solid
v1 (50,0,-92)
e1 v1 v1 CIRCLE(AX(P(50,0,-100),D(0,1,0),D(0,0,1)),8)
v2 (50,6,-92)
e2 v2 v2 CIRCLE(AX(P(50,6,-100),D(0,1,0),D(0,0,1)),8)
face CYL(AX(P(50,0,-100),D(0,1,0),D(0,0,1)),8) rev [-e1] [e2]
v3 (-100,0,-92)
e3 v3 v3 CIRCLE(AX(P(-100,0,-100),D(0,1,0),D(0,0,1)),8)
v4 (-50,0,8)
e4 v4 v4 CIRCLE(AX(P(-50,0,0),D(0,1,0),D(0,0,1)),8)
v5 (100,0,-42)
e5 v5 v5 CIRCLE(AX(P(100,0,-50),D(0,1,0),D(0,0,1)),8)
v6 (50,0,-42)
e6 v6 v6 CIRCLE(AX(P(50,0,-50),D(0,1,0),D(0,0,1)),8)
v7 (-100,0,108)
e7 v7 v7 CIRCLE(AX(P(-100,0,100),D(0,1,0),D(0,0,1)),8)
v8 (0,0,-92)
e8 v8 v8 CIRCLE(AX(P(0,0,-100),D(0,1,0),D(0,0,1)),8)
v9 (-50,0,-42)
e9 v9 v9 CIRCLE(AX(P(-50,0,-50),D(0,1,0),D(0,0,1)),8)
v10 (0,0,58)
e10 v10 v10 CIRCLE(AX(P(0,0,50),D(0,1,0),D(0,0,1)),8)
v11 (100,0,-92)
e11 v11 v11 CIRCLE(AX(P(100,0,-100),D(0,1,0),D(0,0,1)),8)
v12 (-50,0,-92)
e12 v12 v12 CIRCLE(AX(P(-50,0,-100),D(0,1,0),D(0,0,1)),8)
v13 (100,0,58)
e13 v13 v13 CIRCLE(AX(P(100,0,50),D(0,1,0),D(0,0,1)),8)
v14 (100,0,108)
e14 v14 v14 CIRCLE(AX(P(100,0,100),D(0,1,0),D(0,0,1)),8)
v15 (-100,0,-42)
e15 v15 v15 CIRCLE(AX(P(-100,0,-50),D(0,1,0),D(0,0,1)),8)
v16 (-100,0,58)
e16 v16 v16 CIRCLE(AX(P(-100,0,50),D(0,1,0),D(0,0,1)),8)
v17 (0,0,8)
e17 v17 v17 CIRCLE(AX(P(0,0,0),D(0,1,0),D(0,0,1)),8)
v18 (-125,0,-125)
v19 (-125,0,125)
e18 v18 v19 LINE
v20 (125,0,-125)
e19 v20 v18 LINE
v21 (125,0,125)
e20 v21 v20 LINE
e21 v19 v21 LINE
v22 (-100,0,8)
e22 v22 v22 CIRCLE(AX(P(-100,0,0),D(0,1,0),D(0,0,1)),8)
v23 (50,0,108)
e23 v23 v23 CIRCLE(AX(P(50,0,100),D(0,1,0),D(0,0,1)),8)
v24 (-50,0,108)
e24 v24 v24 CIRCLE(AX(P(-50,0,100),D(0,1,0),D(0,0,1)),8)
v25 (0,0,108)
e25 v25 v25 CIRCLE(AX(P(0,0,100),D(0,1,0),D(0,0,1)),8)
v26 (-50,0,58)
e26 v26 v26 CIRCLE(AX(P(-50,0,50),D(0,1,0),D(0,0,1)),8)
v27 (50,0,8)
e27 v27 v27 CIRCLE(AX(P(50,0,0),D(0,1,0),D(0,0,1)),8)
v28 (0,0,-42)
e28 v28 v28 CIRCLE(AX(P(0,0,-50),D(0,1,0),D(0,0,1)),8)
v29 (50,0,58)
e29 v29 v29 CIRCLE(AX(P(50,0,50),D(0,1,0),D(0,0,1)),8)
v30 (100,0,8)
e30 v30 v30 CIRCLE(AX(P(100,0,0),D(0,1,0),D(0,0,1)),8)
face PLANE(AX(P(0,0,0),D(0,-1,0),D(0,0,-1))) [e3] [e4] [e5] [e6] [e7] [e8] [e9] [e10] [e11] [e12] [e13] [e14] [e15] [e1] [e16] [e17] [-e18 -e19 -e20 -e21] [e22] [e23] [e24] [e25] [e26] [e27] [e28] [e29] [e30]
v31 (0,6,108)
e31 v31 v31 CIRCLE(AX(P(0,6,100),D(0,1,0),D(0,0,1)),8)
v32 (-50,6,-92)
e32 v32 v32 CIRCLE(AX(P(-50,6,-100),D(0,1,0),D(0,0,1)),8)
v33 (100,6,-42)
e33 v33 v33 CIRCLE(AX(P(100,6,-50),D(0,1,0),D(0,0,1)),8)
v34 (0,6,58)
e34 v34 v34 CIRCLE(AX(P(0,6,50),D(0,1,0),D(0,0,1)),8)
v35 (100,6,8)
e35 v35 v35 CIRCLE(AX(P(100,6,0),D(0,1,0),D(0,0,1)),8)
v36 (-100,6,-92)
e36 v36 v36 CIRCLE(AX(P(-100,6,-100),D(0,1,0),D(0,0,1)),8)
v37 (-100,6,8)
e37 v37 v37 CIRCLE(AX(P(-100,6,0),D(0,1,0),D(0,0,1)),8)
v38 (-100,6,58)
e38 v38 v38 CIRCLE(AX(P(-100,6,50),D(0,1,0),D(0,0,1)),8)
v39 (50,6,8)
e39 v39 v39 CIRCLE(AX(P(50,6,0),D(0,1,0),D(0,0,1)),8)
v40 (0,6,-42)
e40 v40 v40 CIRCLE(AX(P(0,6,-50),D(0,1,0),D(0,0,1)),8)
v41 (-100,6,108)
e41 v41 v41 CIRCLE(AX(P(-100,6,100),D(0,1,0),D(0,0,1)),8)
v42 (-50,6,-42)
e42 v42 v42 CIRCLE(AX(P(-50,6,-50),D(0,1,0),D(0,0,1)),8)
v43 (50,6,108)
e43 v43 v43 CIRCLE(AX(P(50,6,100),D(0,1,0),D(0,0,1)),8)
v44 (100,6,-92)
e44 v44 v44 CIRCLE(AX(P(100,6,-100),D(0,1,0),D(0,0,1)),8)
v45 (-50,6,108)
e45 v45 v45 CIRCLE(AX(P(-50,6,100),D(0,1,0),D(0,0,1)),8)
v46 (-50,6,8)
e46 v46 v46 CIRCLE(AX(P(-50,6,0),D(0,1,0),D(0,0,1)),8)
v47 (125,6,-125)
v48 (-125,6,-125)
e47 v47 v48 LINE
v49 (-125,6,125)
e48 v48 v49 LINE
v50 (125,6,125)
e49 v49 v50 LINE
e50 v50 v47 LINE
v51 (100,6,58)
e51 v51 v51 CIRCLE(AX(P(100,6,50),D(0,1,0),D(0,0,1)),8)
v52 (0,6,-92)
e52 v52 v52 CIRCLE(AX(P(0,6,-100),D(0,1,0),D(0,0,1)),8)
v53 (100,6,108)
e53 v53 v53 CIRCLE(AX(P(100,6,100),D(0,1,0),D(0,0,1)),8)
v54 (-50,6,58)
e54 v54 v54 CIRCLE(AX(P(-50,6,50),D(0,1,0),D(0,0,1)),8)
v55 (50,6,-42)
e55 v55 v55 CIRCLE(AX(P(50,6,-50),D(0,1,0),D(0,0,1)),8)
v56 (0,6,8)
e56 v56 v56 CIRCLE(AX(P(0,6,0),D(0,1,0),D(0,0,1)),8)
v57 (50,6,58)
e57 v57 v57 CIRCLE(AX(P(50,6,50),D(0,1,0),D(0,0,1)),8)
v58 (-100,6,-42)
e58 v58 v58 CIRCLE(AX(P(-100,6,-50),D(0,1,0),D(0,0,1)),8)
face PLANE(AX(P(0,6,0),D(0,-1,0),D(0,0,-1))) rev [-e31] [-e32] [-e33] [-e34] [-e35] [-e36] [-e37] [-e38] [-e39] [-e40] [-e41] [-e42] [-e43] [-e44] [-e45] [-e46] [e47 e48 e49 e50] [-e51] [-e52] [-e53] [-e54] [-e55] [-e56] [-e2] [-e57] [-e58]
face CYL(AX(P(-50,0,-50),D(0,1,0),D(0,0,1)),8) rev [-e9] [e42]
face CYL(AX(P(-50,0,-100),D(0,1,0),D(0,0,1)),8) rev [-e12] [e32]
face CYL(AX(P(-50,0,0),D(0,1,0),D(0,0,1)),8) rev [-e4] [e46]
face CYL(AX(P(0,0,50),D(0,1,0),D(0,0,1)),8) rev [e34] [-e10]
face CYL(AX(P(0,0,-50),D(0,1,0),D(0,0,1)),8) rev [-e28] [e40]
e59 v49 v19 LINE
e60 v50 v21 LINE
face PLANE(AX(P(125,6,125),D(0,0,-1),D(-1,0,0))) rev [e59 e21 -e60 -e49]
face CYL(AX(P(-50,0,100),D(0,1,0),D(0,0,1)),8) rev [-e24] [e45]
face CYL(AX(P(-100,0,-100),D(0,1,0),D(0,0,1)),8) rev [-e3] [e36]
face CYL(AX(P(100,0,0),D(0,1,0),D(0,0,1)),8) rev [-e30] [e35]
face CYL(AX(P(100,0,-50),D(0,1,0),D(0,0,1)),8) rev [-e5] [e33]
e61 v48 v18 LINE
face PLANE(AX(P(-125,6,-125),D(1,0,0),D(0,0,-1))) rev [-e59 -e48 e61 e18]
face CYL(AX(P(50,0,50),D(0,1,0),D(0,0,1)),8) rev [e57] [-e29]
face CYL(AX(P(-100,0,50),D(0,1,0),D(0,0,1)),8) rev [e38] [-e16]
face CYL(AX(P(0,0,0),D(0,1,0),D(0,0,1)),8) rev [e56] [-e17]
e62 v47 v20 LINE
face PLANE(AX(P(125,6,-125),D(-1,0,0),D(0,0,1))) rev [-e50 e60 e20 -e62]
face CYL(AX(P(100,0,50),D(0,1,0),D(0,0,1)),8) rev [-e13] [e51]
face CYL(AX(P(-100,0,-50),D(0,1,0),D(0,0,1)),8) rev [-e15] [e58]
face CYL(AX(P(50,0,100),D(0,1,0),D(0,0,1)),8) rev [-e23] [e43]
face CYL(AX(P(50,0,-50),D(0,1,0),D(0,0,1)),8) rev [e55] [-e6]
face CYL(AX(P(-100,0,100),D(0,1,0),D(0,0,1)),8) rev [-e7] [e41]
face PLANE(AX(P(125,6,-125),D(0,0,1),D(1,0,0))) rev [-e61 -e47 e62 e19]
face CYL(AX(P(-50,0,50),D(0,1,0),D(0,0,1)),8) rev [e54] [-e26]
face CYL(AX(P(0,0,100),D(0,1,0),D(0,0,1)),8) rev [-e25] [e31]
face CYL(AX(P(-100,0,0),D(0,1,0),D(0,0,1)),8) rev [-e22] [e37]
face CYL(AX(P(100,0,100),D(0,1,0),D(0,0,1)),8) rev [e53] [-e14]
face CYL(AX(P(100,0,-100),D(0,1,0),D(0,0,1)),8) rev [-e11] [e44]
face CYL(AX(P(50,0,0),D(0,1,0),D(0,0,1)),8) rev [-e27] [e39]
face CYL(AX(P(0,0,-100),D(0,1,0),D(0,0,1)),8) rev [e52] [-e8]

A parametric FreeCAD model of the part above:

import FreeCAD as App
import Part
import Sketcher
Q = App.Units.Quantity

doc = App.newDocument("Part")
body = doc.addObject("PartDesign::Body", "Body")

sketch1 = doc.addObject("Sketcher::SketchObject", "Sketch")
body.addObject(sketch1)
sketch1.AttachmentSupport = (doc.XZ_Plane, [""])
sketch1.MapMode = "FlatFace"
sketch1.addGeometry(Part.LineSegment(App.Vector(-125, -125, 0), App.Vector(-125, 125, 0)), False)
sketch1.addGeometry(Part.LineSegment(App.Vector(-125, 125, 0), App.Vector(125, 125, 0)), False)
sketch1.addGeometry(Part.LineSegment(App.Vector(125, 125, 0), App.Vector(125, -125, 0)), False)
sketch1.addGeometry(Part.LineSegment(App.Vector(125, -125, 0), App.Vector(-125, -125, 0)), False)
sketch1.addConstraint(Sketcher.Constraint("Coincident", 0, 2, 1, 1))
sketch1.addConstraint(Sketcher.Constraint("Coincident", 1, 2, 2, 1))
sketch1.addConstraint(Sketcher.Constraint("Coincident", 2, 2, 3, 1))
sketch1.addConstraint(Sketcher.Constraint("Coincident", 3, 2, 0, 1))
sketch1.addConstraint(Sketcher.Constraint("Vertical", 0))
sketch1.addConstraint(Sketcher.Constraint("Horizontal", 1))
sketch1.addConstraint(Sketcher.Constraint("Vertical", 2))
sketch1.addConstraint(Sketcher.Constraint("Horizontal", 3))
sketch1.addConstraint(Sketcher.Constraint("Symmetric", 0, 2, 2, 2, -1, 1))
sketch1.addConstraint(Sketcher.Constraint("Equal", 3, 0))
sketch1.addConstraint(Sketcher.Constraint("DistanceX", 1, 1, 1, 2, Q("250 mm")))
pad1 = doc.addObject("PartDesign::Pad", "Pad")
body.addObject(pad1)
pad1.Profile = sketch1
pad1.Length = 6
pad1.Reversed = True

sketch2 = doc.addObject("Sketcher::SketchObject", "Sketch001")
body.addObject(sketch2)
sketch2.AttachmentSupport = (doc.XZ_Plane, [""])
sketch2.MapMode = "FlatFace"
sketch2.AttachmentOffset = App.Placement(App.Vector(0, 0, -6), App.Rotation())
sketch2.addGeometry(Part.Circle(App.Vector(-100, 100, 0), App.Vector(0, 0, 1), 8), False)
sketch2.addGeometry(Part.Circle(App.Vector(-50, 100, 0), App.Vector(0, 0, 1), 8), False)
sketch2.addGeometry(Part.Circle(App.Vector(0, 100, 0), App.Vector(0, 0, 1), 8), False)
sketch2.addGeometry(Part.Circle(App.Vector(50, 100, 0), App.Vector(0, 0, 1), 8), False)
sketch2.addGeometry(Part.Circle(App.Vector(100, 100, 0), App.Vector(0, 0, 1), 8), False)
sketch2.addGeometry(Part.Circle(App.Vector(-50, 50, 0), App.Vector(0, 0, 1), 8), False)
sketch2.addGeometry(Part.Circle(App.Vector(0, 50, 0), App.Vector(0, 0, 1), 8), False)
sketch2.addGeometry(Part.Circle(App.Vector(50, 50, 0), App.Vector(0, 0, 1), 8), False)
sketch2.addGeometry(Part.Circle(App.Vector(100, 50, 0), App.Vector(0, 0, 1), 8), False)
sketch2.addGeometry(Part.Circle(App.Vector(-50, 0, 0), App.Vector(0, 0, 1), 8), False)
sketch2.addGeometry(Part.Circle(App.Vector(0, 0, 0), App.Vector(0, 0, 1), 8), False)
sketch2.addGeometry(Part.Circle(App.Vector(50, 0, 0), App.Vector(0, 0, 1), 8), False)
sketch2.addGeometry(Part.Circle(App.Vector(100, 0, 0), App.Vector(0, 0, 1), 8), False)
sketch2.addGeometry(Part.Circle(App.Vector(-50, -50, 0), App.Vector(0, 0, 1), 8), False)
sketch2.addGeometry(Part.Circle(App.Vector(0, -50, 0), App.Vector(0, 0, 1), 8), False)
sketch2.addGeometry(Part.Circle(App.Vector(50, -50, 0), App.Vector(0, 0, 1), 8), False)
sketch2.addGeometry(Part.Circle(App.Vector(100, -50, 0), App.Vector(0, 0, 1), 8), False)
sketch2.addGeometry(Part.Circle(App.Vector(-50, -100, 0), App.Vector(0, 0, 1), 8), False)
sketch2.addGeometry(Part.Circle(App.Vector(0, -100, 0), App.Vector(0, 0, 1), 8), False)
sketch2.addGeometry(Part.Circle(App.Vector(50, -100, 0), App.Vector(0, 0, 1), 8), False)
sketch2.addGeometry(Part.Circle(App.Vector(100, -100, 0), App.Vector(0, 0, 1), 8), False)
sketch2.addGeometry(Part.Circle(App.Vector(-100, 50, 0), App.Vector(0, 0, 1), 8), False)
sketch2.addGeometry(Part.Circle(App.Vector(-100, 0, 0), App.Vector(0, 0, 1), 8), False)
sketch2.addGeometry(Part.Circle(App.Vector(-100, -50, 0), App.Vector(0, 0, 1), 8), False)
sketch2.addGeometry(Part.Circle(App.Vector(-100, -100, 0), App.Vector(0, 0, 1), 8), False)
sketch2.addConstraint(Sketcher.Constraint("Coincident", 10, 3, -1, 1))
sketch2.addConstraint(Sketcher.Constraint("Equal", 0, 1))
sketch2.addConstraint(Sketcher.Constraint("Equal", 1, 2))
sketch2.addConstraint(Sketcher.Constraint("Equal", 2, 3))
sketch2.addConstraint(Sketcher.Constraint("Equal", 3, 4))
sketch2.addConstraint(Sketcher.Constraint("Equal", 4, 5))
sketch2.addConstraint(Sketcher.Constraint("Equal", 5, 6))
sketch2.addConstraint(Sketcher.Constraint("Equal", 6, 7))
sketch2.addConstraint(Sketcher.Constraint("Equal", 7, 8))
sketch2.addConstraint(Sketcher.Constraint("Equal", 8, 9))
sketch2.addConstraint(Sketcher.Constraint("Equal", 9, 10))
sketch2.addConstraint(Sketcher.Constraint("Equal", 10, 11))
sketch2.addConstraint(Sketcher.Constraint("Equal", 11, 12))
sketch2.addConstraint(Sketcher.Constraint("Equal", 12, 13))
sketch2.addConstraint(Sketcher.Constraint("Equal", 13, 14))
sketch2.addConstraint(Sketcher.Constraint("Equal", 14, 15))
sketch2.addConstraint(Sketcher.Constraint("Equal", 15, 16))
sketch2.addConstraint(Sketcher.Constraint("Equal", 16, 17))
sketch2.addConstraint(Sketcher.Constraint("Equal", 17, 18))
sketch2.addConstraint(Sketcher.Constraint("Equal", 18, 19))
sketch2.addConstraint(Sketcher.Constraint("Equal", 19, 20))
sketch2.addConstraint(Sketcher.Constraint("Equal", 20, 21))
sketch2.addConstraint(Sketcher.Constraint("Equal", 21, 22))
sketch2.addConstraint(Sketcher.Constraint("Equal", 22, 23))
sketch2.addConstraint(Sketcher.Constraint("Equal", 23, 24))
sketch2.addConstraint(Sketcher.Constraint("Symmetric", 9, 3, 11, 3, -1, 1))
sketch2.addConstraint(Sketcher.Constraint("Symmetric", 7, 3, 13, 3, -1, 1))
sketch2.addConstraint(Sketcher.Constraint("Symmetric", 6, 3, 14, 3, -1, 1))
sketch2.addConstraint(Sketcher.Constraint("Symmetric", 5, 3, 15, 3, -1, 1))
sketch2.addConstraint(Sketcher.Constraint("Symmetric", 3, 3, 17, 3, -1, 1))
sketch2.addConstraint(Sketcher.Constraint("Symmetric", 2, 3, 18, 3, -1, 1))
sketch2.addConstraint(Sketcher.Constraint("Symmetric", 1, 3, 19, 3, -1, 1))
sketch2.addConstraint(Sketcher.Constraint("Symmetric", 0, 3, 20, 3, -1, 1))
sketch2.addConstraint(Sketcher.Constraint("Symmetric", 16, 3, 21, 3, -1, 1))
sketch2.addConstraint(Sketcher.Constraint("Symmetric", 12, 3, 22, 3, -1, 1))
sketch2.addConstraint(Sketcher.Constraint("Symmetric", 8, 3, 23, 3, -1, 1))
sketch2.addConstraint(Sketcher.Constraint("Symmetric", 4, 3, 24, 3, -1, 1))
sketch2.addConstraint(Sketcher.Constraint("Symmetric", 1, 3, 3, 3, -2))
sketch2.addConstraint(Sketcher.Constraint("Symmetric", 0, 3, 4, 3, -2))
sketch2.addConstraint(Sketcher.Constraint("Symmetric", 5, 3, 7, 3, -2))
sketch2.addConstraint(Sketcher.Constraint("Symmetric", 8, 3, 21, 3, -2))
sketch2.addConstraint(Sketcher.Constraint("PointOnObject", 2, 3, -2))
sketch2.addConstraint(Sketcher.Constraint("PointOnObject", 6, 3, -2))
sketch2.addConstraint(Sketcher.Constraint("PointOnObject", 9, 3, -1))
sketch2.addConstraint(Sketcher.Constraint("PointOnObject", 12, 3, -1))
sketch2.addConstraint(Sketcher.Constraint("Horizontal", 0, 3, 1, 3))
sketch2.addConstraint(Sketcher.Constraint("Horizontal", 1, 3, 2, 3))
sketch2.addConstraint(Sketcher.Constraint("Horizontal", 5, 3, 6, 3))
sketch2.addConstraint(Sketcher.Constraint("Horizontal", 7, 3, 8, 3))
sketch2.addConstraint(Sketcher.Constraint("Vertical", 1, 3, 5, 3))
sketch2.addConstraint(Sketcher.Constraint("Vertical", 4, 3, 8, 3))
sketch2.addConstraint(Sketcher.Constraint("Vertical", 5, 3, 9, 3))
sketch2.addConstraint(Sketcher.Constraint("Vertical", 8, 3, 12, 3))
sketch2.addConstraint(Sketcher.Constraint("Diameter", 0, Q("16 mm")))
sketch2.addConstraint(Sketcher.Constraint("DistanceX", 0, 3, -1, 1, Q("100 mm")))
sketch2.addConstraint(Sketcher.Constraint("DistanceY", -1, 1, 0, 3, Q("100 mm")))
sketch2.addConstraint(Sketcher.Constraint("DistanceX", 1, 3, -1, 1, Q("50 mm")))
sketch2.addConstraint(Sketcher.Constraint("DistanceY", -1, 1, 5, 3, Q("50 mm")))
pocket1 = doc.addObject("PartDesign::Pocket", "Pocket")
body.addObject(pocket1)
pocket1.Profile = sketch2
pocket1.Length = 6
pocket1.Reversed = True

doc.recompute()
